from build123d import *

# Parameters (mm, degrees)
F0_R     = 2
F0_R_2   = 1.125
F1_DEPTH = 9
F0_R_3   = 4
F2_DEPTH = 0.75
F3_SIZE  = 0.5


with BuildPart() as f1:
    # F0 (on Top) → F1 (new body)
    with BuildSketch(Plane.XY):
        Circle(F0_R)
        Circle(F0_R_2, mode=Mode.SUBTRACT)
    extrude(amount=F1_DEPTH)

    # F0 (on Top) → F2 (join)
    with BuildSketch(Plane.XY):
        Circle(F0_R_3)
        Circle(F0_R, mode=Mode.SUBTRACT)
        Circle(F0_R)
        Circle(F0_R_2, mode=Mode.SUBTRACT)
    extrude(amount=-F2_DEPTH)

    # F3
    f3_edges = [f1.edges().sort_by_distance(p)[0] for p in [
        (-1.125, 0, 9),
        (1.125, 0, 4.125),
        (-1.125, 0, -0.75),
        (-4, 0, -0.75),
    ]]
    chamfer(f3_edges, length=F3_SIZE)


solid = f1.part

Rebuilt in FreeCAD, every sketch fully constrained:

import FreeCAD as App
import Part
import Sketcher

V = App.Vector
Q = App.Units.Quantity


def edges_at(feature, points):
    """Names of the edges that pass closest to the given points."""
    edges = feature.Shape.Edges
    near = lambda p: min(range(len(edges)), key=lambda i: edges[i].distToShape(Part.Vertex(*p))[0])
    return sorted({f"Edge{near(p) + 1}" for p in points})

doc = App.newDocument("Part")
body = doc.addObject("PartDesign::Body", "Body")

# Sketch on XY plane
sketch1 = body.newObject("Sketcher::SketchObject", "Sketch")
sketch1.AttachmentSupport = (doc.getObject("XY_Plane"), [""])
sketch1.MapMode = "FlatFace"
sketch1.addGeometry(Part.Circle(V(0, 0, 0), V(0, 0, 1), 2), False)
sketch1.addGeometry(Part.Circle(V(0, 0, 0), V(0, 0, 1), 1.125), False)
sketch1.addConstraint(Sketcher.Constraint("Coincident", 0, 3, -1, 1))
sketch1.addConstraint(Sketcher.Constraint("Coincident", 1, 3, -1, 1))
sketch1.addConstraint(Sketcher.Constraint("Diameter", 0, Q("4 mm")))
sketch1.addConstraint(Sketcher.Constraint("Diameter", 1, Q("2.25 mm")))
pad1 = body.newObject("PartDesign::Pad", "Pad")
pad1.Profile = sketch1
pad1.Length = 9

# Sketch on XY plane
sketch2 = body.newObject("Sketcher::SketchObject", "Sketch001")
sketch2.AttachmentSupport = (doc.getObject("XY_Plane"), [""])
sketch2.MapMode = "FlatFace"
sketch2.addGeometry(Part.Circle(V(0, 0, 0), V(0, 0, 1), 4), False)
sketch2.addGeometry(Part.Circle(V(0, 0, 0), V(0, 0, 1), 1.125), False)
sketch2.addConstraint(Sketcher.Constraint("Coincident", 0, 3, -1, 1))
sketch2.addConstraint(Sketcher.Constraint("Coincident", 1, 3, -1, 1))
sketch2.addConstraint(Sketcher.Constraint("Diameter", 0, Q("8 mm")))
sketch2.addConstraint(Sketcher.Constraint("Diameter", 1, Q("2.25 mm")))
pad2 = body.newObject("PartDesign::Pad", "Pad001")
pad2.Profile = sketch2
pad2.Length = 0.75
pad2.Reversed = True
doc.recompute()

chamfer = body.newObject("PartDesign::Chamfer", "Chamfer")
chamfer.Base = (pad2, edges_at(pad2, [
    (-1.125, 0, 9),
    (1.125, 0, 4.5),
    (-1.125, 0, -0.75),
    (-4, 0, -0.75),
]))
chamfer.Size = 0.5

doc.recompute()
